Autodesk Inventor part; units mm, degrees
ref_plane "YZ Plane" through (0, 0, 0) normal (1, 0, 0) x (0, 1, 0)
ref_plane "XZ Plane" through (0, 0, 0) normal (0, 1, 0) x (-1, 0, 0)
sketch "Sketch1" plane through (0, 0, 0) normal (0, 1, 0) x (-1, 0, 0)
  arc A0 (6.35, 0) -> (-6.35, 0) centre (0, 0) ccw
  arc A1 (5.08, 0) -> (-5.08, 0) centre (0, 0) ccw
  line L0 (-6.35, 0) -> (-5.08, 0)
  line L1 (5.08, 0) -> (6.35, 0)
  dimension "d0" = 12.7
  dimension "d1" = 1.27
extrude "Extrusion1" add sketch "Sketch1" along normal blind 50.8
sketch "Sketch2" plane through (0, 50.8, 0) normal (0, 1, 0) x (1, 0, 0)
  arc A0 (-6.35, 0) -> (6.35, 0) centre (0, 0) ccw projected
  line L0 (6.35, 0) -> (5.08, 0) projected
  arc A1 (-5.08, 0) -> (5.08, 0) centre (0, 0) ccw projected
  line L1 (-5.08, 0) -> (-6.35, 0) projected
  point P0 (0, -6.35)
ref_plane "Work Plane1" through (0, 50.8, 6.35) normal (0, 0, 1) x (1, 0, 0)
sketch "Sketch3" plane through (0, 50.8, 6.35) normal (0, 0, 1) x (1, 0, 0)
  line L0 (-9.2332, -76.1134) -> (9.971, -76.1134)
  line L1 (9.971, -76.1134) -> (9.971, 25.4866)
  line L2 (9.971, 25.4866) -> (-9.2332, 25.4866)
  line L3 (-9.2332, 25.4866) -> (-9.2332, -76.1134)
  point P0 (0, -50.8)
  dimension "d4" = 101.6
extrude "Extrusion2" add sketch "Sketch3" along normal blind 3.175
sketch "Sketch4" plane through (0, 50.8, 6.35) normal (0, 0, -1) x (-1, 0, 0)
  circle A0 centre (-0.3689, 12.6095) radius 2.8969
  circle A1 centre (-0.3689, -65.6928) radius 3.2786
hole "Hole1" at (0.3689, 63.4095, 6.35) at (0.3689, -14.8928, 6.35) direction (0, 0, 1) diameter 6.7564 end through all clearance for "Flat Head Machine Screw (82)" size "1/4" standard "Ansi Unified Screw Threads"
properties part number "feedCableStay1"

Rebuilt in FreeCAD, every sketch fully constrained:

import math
import FreeCAD as App
import Part
import Sketcher
Q = App.Units.Quantity


def add_polygon(sketch, points):
    """Adds a closed chain of lines whose ends are joined by coincident constraints."""
    first, n = sketch.GeometryCount, len(points)
    for a, b in zip(points, points[1:] + points[:1]):
        sketch.addGeometry(Part.LineSegment(App.Vector(*a, 0), App.Vector(*b, 0)), False)
    for i in range(n):
        sketch.addConstraint(Sketcher.Constraint("Coincident", first + i, 2, first + (i + 1) % n, 1))

doc = App.newDocument("Part")
body = doc.addObject("PartDesign::Body", "Body")
body.AllowCompound = True

sketch1 = body.newObject("Sketcher::SketchObject", "Sketch")
sketch1.AttachmentSupport = (doc.getObject("XZ_Plane"), [""])
sketch1.MapMode = "FlatFace"
sketch1.addGeometry([
    Part.LineSegment(App.Vector(-5.08, 0, 0), App.Vector(-6.35, 0, 0)),
    Part.ArcOfCircle(Part.Circle(App.Vector(0, 0, 0), App.Vector(0, 0, 1), 6.35), math.radians(0), math.radians(180)),
    Part.LineSegment(App.Vector(6.35, 0, 0), App.Vector(5.08, 0, 0)),
    Part.ArcOfCircle(Part.Circle(App.Vector(0, 0, 0), App.Vector(0, 0, 1), 5.08), math.radians(0), math.radians(180)),
], False)
sketch1.addConstraint([
    Sketcher.Constraint("Coincident", 0, 2, 1, 2),
    Sketcher.Constraint("Coincident", 1, 1, 2, 1),
    Sketcher.Constraint("Coincident", 2, 2, 3, 1),
    Sketcher.Constraint("Coincident", 3, 2, 0, 1),
    Sketcher.Constraint("Horizontal", 0),
    Sketcher.Constraint("Horizontal", 2),
    Sketcher.Constraint("Coincident", 1, 3, -1, 1),
    Sketcher.Constraint("Coincident", 3, 3, -1, 1),
    Sketcher.Constraint("PointOnObject", 0, 2, -1),
    Sketcher.Constraint("PointOnObject", 1, 1, -1),
    Sketcher.Constraint("Radius", 1, Q("0.25 in")),
    Sketcher.Constraint("DistanceX", 0, 2, 0, 1, Q("0.05 in")),
])
pad1 = body.newObject("PartDesign::Pad", "Pad")
pad1.Profile = sketch1
pad1.Length = Q("2 in")
pad1.Reversed = True

sketch2 = body.newObject("Sketcher::SketchObject", "Sketch001")
sketch2.AttachmentSupport = (doc.getObject("XY_Plane"), [""])
sketch2.MapMode = "FlatFace"
sketch2.AttachmentOffset = App.Placement(App.Vector(0, 0, 0.25 * 25.4), App.Rotation())
add_polygon(sketch2, [(-9.2332, 76.2866), (-9.2332, -25.3134), (9.971, -25.3134), (9.971, 76.2866)])
sketch2.addConstraint([
    Sketcher.Constraint("Vertical", 0),
    Sketcher.Constraint("Horizontal", 1),
    Sketcher.Constraint("Vertical", 2),
    Sketcher.Constraint("Horizontal", 3),
    Sketcher.Constraint("DistanceY", 0, 2, 0, 1, Q("4 in")),
    Sketcher.Constraint("DistanceX", 1, 1, 1, 2, 19.2042),
    Sketcher.Constraint("DistanceX", 0, 2, -1, 1, Q("0.3635 in")),
    Sketcher.Constraint("DistanceY", 0, 2, -1, 1, Q("0.9966 in")),
])
pad2 = body.newObject("PartDesign::Pad", "Pad001")
pad2.Profile = sketch2
pad2.Length = Q("0.125 in")

sketch3 = body.newObject("Sketcher::SketchObject", "Sketch002")
sketch3.AttachmentSupport = (doc.getObject("XY_Plane"), [""])
sketch3.MapMode = "FlatFace"
sketch3.AttachmentOffset = App.Placement(App.Vector(0, 0, 0.25 * 25.4), App.Rotation())
sketch3.addGeometry([
    Part.Circle(App.Vector(0.3689, 63.4095, 0), App.Vector(0, 0, 1), 3.3782),
    Part.Circle(App.Vector(0.3689, -14.8928, 0), App.Vector(0, 0, 1), 3.3782),
], False)
sketch3.addConstraint([
    Sketcher.Constraint("Equal", 0, 1),
    Sketcher.Constraint("Vertical", 0, 3, 1, 3),
    Sketcher.Constraint("Diameter", 0, Q("0.266 in")),
    Sketcher.Constraint("DistanceX", -1, 1, 0, 3, 0.369),
    Sketcher.Constraint("DistanceY", -1, 1, 0, 3, 63.4095),
    Sketcher.Constraint("DistanceY", 1, 3, -1, 1, 14.8928),
])
doc.recompute()
hole = body.newObject("PartDesign::Hole", "Hole")
hole.Profile = sketch3
hole.ThreadType = "None"
hole.Diameter = Q("0.266 in")
hole.DepthType = "ThroughAll"
hole.Reversed = True

doc.recompute()
